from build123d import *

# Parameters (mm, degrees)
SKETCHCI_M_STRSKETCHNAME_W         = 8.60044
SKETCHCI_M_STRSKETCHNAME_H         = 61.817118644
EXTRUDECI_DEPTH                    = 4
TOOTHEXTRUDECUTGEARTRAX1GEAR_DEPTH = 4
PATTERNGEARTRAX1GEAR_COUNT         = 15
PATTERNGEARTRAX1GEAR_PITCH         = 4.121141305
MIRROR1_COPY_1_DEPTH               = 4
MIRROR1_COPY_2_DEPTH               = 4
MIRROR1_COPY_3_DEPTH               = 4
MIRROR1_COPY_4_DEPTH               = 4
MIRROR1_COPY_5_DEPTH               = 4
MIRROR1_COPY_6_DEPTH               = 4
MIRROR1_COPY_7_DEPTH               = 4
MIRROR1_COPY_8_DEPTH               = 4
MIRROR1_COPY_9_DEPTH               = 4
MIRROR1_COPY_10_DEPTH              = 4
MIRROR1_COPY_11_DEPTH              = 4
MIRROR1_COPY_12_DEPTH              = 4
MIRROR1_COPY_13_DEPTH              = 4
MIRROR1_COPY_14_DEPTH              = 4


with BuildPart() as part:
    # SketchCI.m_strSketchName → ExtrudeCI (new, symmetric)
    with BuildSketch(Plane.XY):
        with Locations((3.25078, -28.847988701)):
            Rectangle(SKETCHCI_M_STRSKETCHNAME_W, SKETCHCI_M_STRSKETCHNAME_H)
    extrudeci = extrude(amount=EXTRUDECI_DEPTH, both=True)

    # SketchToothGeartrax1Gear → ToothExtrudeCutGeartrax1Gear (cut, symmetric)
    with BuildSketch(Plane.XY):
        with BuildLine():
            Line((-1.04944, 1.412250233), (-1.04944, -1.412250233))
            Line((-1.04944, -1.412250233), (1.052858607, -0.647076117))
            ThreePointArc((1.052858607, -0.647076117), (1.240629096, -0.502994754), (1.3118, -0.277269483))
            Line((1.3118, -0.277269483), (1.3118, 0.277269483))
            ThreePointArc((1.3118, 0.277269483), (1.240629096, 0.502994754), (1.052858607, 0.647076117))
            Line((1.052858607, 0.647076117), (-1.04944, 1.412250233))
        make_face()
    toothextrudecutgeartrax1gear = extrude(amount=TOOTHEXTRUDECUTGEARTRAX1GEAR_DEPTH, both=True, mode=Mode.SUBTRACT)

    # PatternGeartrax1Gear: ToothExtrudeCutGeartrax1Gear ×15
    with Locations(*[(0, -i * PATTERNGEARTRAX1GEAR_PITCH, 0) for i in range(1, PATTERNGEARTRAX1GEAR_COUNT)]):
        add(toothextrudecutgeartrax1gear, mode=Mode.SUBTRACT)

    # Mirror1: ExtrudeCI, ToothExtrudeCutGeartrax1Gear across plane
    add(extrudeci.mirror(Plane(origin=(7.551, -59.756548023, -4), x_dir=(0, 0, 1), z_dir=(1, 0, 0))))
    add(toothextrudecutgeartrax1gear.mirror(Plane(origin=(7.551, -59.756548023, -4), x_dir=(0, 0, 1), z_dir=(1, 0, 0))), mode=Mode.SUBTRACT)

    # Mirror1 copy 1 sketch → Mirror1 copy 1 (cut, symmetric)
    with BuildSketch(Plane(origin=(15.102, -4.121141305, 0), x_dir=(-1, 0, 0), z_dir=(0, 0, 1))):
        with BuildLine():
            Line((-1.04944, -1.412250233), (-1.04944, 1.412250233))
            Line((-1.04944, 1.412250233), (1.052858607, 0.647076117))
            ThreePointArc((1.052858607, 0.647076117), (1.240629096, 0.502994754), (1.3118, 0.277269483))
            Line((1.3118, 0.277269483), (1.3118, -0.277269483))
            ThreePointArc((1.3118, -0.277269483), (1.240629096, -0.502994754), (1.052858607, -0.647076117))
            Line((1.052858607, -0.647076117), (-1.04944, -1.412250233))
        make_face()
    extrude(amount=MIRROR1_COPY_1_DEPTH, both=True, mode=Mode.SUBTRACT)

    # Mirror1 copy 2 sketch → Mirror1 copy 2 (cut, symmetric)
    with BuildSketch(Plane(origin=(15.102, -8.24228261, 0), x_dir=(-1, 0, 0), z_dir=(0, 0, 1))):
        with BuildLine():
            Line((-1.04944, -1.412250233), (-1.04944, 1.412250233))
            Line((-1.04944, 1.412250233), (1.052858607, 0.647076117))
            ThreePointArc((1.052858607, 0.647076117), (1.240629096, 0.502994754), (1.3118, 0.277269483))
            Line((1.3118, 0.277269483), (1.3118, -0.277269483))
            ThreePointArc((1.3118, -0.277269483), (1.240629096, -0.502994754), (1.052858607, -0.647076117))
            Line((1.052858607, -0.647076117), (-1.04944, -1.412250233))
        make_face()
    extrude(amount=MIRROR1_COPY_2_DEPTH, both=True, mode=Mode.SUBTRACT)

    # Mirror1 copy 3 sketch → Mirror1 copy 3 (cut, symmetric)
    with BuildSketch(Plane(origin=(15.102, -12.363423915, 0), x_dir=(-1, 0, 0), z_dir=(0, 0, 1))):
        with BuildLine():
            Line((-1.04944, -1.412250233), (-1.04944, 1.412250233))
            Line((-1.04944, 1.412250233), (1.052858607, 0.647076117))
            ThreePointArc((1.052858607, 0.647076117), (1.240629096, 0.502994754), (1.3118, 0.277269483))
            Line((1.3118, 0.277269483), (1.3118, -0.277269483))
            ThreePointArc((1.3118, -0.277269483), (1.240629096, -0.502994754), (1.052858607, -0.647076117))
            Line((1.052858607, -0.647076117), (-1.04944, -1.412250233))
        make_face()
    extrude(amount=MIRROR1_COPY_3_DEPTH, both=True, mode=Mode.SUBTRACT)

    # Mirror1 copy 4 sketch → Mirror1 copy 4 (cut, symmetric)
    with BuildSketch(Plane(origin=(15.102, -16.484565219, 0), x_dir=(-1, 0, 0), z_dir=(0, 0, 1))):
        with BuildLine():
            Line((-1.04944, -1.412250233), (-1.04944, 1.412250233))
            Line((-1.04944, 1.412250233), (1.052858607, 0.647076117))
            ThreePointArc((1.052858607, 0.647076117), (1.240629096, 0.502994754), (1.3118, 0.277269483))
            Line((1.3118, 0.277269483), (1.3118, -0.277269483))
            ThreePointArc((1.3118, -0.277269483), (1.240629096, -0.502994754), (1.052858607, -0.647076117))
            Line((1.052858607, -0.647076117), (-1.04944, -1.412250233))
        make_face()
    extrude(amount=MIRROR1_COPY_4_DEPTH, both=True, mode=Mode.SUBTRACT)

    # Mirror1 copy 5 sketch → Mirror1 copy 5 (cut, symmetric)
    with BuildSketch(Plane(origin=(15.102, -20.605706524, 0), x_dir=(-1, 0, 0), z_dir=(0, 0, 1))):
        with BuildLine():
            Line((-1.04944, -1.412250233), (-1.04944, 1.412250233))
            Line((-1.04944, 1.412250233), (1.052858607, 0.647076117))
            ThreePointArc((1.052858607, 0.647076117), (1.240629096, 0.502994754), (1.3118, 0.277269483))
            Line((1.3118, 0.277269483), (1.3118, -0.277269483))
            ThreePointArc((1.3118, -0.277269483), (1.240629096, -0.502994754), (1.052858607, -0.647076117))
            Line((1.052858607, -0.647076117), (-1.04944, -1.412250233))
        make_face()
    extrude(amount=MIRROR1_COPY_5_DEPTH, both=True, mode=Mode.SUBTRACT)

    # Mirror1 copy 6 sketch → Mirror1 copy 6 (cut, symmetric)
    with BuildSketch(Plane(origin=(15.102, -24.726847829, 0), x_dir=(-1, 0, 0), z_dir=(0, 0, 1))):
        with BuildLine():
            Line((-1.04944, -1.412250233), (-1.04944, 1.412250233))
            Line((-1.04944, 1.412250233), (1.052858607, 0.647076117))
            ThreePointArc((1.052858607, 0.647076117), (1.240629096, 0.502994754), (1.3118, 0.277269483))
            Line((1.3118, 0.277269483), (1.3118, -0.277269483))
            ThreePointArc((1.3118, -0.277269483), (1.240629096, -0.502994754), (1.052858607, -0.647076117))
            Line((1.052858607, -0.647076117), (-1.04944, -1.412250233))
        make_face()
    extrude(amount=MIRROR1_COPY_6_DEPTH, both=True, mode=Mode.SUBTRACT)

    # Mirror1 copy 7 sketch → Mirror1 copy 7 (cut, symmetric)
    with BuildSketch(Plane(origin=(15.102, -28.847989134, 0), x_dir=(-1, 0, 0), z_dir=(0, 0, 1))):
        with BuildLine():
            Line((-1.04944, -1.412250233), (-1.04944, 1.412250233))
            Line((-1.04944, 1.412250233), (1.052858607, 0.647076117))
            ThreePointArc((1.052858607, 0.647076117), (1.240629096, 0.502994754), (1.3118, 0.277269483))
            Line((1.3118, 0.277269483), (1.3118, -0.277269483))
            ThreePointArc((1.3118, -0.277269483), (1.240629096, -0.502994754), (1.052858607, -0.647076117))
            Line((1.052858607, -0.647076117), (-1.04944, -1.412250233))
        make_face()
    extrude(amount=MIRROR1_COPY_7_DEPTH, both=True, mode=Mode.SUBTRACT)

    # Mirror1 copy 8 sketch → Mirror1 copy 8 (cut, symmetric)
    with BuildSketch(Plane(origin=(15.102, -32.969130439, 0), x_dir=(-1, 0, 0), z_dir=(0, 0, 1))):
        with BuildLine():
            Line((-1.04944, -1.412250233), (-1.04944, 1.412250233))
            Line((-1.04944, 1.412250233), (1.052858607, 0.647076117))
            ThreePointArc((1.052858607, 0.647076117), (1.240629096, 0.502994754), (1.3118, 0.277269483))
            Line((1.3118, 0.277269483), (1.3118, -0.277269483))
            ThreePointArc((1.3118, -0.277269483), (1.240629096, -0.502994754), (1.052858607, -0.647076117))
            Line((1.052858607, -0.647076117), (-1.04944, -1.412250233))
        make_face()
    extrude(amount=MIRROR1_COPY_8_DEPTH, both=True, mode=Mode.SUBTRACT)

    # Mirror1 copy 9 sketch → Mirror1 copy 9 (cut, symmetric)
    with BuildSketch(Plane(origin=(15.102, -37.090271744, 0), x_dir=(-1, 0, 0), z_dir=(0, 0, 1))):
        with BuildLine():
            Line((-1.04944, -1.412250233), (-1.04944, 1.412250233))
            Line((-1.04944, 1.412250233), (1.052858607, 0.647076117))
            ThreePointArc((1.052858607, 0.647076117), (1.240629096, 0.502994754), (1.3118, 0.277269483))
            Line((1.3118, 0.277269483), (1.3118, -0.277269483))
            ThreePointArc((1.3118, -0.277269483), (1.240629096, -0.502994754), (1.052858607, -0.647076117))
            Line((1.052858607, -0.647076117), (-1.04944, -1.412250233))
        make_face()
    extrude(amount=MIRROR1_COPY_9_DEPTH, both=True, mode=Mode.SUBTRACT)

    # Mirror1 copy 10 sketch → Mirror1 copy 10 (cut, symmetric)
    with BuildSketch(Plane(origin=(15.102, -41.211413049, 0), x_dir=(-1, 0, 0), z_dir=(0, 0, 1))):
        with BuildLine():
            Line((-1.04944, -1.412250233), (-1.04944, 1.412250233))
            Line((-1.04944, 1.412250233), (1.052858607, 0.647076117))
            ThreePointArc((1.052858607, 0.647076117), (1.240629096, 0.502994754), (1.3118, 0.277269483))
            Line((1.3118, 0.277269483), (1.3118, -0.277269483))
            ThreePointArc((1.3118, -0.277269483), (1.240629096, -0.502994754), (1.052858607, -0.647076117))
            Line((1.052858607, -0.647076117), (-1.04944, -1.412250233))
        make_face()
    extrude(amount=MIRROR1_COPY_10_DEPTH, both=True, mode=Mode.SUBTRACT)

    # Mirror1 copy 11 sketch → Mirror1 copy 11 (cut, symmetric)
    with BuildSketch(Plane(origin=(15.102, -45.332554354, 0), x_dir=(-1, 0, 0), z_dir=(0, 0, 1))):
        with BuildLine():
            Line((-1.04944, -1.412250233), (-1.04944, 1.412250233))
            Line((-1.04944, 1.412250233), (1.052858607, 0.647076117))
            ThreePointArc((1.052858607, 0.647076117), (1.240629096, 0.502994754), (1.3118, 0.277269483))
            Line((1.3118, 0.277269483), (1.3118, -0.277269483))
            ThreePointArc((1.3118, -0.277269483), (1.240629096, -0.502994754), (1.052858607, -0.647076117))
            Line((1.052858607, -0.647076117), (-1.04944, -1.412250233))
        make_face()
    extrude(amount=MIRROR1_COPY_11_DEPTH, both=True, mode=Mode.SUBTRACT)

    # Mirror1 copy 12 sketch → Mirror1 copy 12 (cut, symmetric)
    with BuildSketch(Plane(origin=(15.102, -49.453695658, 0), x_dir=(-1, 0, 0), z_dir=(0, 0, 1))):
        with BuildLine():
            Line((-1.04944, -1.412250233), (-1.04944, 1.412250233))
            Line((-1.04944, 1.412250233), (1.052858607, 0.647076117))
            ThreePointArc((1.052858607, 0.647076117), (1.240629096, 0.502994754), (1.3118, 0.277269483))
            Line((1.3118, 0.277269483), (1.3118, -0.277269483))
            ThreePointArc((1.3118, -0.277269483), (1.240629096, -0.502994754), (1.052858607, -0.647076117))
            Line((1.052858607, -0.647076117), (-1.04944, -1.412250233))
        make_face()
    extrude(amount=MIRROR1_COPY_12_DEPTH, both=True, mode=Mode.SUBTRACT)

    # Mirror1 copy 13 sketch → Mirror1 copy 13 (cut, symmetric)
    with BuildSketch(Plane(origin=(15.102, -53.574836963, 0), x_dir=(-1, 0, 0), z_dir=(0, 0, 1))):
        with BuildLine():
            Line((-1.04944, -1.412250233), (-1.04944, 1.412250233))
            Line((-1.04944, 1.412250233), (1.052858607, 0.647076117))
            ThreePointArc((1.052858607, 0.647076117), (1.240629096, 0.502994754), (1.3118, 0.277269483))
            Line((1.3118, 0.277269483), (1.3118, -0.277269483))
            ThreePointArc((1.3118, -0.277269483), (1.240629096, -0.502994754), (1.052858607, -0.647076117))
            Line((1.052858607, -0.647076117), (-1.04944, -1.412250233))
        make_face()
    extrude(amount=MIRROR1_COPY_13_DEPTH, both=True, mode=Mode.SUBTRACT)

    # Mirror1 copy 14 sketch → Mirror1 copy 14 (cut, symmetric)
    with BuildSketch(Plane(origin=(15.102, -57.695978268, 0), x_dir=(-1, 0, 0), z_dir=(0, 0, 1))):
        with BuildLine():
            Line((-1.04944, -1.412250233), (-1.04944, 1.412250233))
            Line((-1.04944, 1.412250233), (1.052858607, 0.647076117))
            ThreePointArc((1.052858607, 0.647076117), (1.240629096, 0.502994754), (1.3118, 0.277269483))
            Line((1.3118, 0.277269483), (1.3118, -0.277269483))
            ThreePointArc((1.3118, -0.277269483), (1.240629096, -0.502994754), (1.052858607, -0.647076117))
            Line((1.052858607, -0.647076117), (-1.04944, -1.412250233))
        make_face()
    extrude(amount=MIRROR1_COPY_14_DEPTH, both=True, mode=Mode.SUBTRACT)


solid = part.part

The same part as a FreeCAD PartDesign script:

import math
import FreeCAD as App
import Part
import Sketcher
Q = App.Units.Quantity


def add_polygon(sketch, points):
    """Adds a closed chain of lines whose ends are joined by coincident constraints."""
    first, n = sketch.GeometryCount, len(points)
    for a, b in zip(points, points[1:] + points[:1]):
        sketch.addGeometry(Part.LineSegment(App.Vector(*a, 0), App.Vector(*b, 0)), False)
    for i in range(n):
        sketch.addConstraint(Sketcher.Constraint("Coincident", first + i, 2, first + (i + 1) % n, 1))

doc = App.newDocument("Part")
body = doc.addObject("PartDesign::Body", "Body")

sketch1 = body.newObject("Sketcher::SketchObject", "Sketch")
sketch1.AttachmentSupport = (doc.getObject("XY_Plane"), [""])
sketch1.MapMode = "FlatFace"
add_polygon(sketch1, [(-1.04944, 2.060571), (-1.04944, -59.756548), (7.551, -59.756548), (7.551, 2.060571)])
sketch1.addConstraint([
    Sketcher.Constraint("Vertical", 0),
    Sketcher.Constraint("Horizontal", 1),
    Sketcher.Constraint("Vertical", 2),
    Sketcher.Constraint("Horizontal", 3),
    Sketcher.Constraint("DistanceX", -1, 1, 1, 2, Q("7.551 mm")),
    Sketcher.Constraint("DistanceX", 1, 1, 1, 2, Q("8.60044 mm")),
    Sketcher.Constraint("DistanceY", 0, 2, 0, 1, Q("61.817119 mm")),
    Sketcher.Constraint("DistanceY", 0, 2, -1, 1, Q("59.756548 mm")),
])
pad1 = body.newObject("PartDesign::Pad", "Pad")
pad1.Profile = sketch1
pad1.Length = 8
pad1.Midplane = True

sketch2 = body.newObject("Sketcher::SketchObject", "Sketch001")
sketch2.AttachmentSupport = (doc.getObject("XY_Plane"), [""])
sketch2.MapMode = "FlatFace"
sketch2.addGeometry([
    Part.LineSegment(App.Vector(-1.04944, 1.41225, 0), App.Vector(-1.04944, -1.41225, 0)),
    Part.LineSegment(App.Vector(-1.04944, -1.41225, 0), App.Vector(1.052859, -0.647076, 0)),
    Part.ArcOfCircle(Part.Circle(App.Vector(0.91826, -0.277269, 0), App.Vector(0, 0, 1), 0.39354), math.radians(-70), math.radians(0)),
    Part.LineSegment(App.Vector(1.3118, -0.277269, 0), App.Vector(1.3118, 0.277269, 0)),
    Part.ArcOfCircle(Part.Circle(App.Vector(0.91826, 0.277269, 0), App.Vector(0, 0, 1), 0.39354), math.radians(0), math.radians(70)),
    Part.LineSegment(App.Vector(1.052859, 0.647076, 0), App.Vector(-1.04944, 1.41225, 0)),
], False)
sketch2.addConstraint([
    Sketcher.Constraint("Coincident", 0, 2, 1, 1),
    Sketcher.Constraint("Tangent", 1, 2, 2, 1),
    Sketcher.Constraint("Tangent", 2, 2, 3, 1),
    Sketcher.Constraint("Tangent", 3, 2, 4, 1),
    Sketcher.Constraint("Tangent", 4, 2, 5, 1),
    Sketcher.Constraint("Coincident", 5, 2, 0, 1),
    Sketcher.Constraint("Vertical", 0),
    Sketcher.Constraint("Vertical", 3),
    Sketcher.Constraint("Equal", 2, 4),
    Sketcher.Constraint("Symmetric", 1, 2, 4, 2, -1),
    Sketcher.Constraint("Angle", 1, Q("20 deg")),
    Sketcher.Constraint("Radius", 2, Q("0.39354 mm")),
    Sketcher.Constraint("DistanceY", 0, 2, 0, 1, Q("2.8245 mm")),
    Sketcher.Constraint("DistanceY", 3, 1, 3, 2, Q("0.554539 mm")),
    Sketcher.Constraint("DistanceX", -1, 1, 2, 2, Q("1.3118 mm")),
])
pocket1 = body.newObject("PartDesign::Pocket", "Pocket")
pocket1.Profile = sketch2
pocket1.Length = 8
pocket1.Midplane = True
doc.recompute()

linearpattern = body.newObject("PartDesign::LinearPattern", "LinearPattern")
linearpattern.Originals = [pocket1]
linearpattern.Direction = (doc.getObject("Y_Axis"), [""])
linearpattern.Mode = "offset"
linearpattern.Offset = 4.121141
linearpattern.Occurrences = 15
linearpattern.Reversed = True
body.Tip = linearpattern
doc.recompute()

datumplane = body.newObject("PartDesign::Plane", "DatumPlane")
datumplane.AttachmentSupport = (doc.getObject("YZ_Plane"), [""])
datumplane.MapMode = "FlatFace"
datumplane.AttachmentOffset = App.Placement(App.Vector(0, 0, 7.551), App.Rotation())
mirrored = body.newObject("PartDesign::Mirrored", "Mirrored")
mirrored.Originals = [pad1, pocket1]
mirrored.MirrorPlane = (datumplane, [""])
body.Tip = mirrored

sketch3 = body.newObject("Sketcher::SketchObject", "Sketch002")
sketch3.AttachmentSupport = (doc.getObject("XY_Plane"), [""])
sketch3.MapMode = "FlatFace"
sketch3.addGeometry([
    Part.LineSegment(App.Vector(16.15144, -5.533392, 0), App.Vector(16.15144, -2.708891, 0)),
    Part.LineSegment(App.Vector(16.15144, -2.708891, 0), App.Vector(14.049141, -3.474065, 0)),
    Part.ArcOfCircle(Part.Circle(App.Vector(14.18374, -3.843872, 0), App.Vector(0, 0, 1), 0.39354), math.radians(110), math.radians(180)),
    Part.LineSegment(App.Vector(13.7902, -3.843872, 0), App.Vector(13.7902, -4.398411, 0)),
    Part.ArcOfCircle(Part.Circle(App.Vector(14.18374, -4.398411, 0), App.Vector(0, 0, 1), 0.39354), math.radians(180), math.radians(250)),
    Part.LineSegment(App.Vector(14.049141, -4.768217, 0), App.Vector(16.15144, -5.533392, 0)),
], False)
sketch3.addConstraint([
    Sketcher.Constraint("Coincident", 0, 2, 1, 1),
    Sketcher.Constraint("Tangent", 1, 2, 2, 1),
    Sketcher.Constraint("Tangent", 2, 2, 3, 1),
    Sketcher.Constraint("Tangent", 3, 2, 4, 1),
    Sketcher.Constraint("Tangent", 4, 2, 5, 1),
    Sketcher.Constraint("Coincident", 5, 2, 0, 1),
    Sketcher.Constraint("Vertical", 0),
    Sketcher.Constraint("Vertical", 3),
    Sketcher.Constraint("Equal", 2, 4),
    Sketcher.Constraint("Vertical", 1, 2, 4, 2),
    Sketcher.Constraint("Angle", 1, Q("-160 deg")),
    Sketcher.Constraint("Radius", 2, Q("0.39354 mm")),
    Sketcher.Constraint("DistanceY", 0, 1, 0, 2, Q("2.8245 mm")),
    Sketcher.Constraint("DistanceY", 3, 2, 3, 1, Q("0.554539 mm")),
    Sketcher.Constraint("DistanceX", -1, 1, 2, 2, Q("13.7902 mm")),
    Sketcher.Constraint("DistanceY", 2, 3, -1, 1, Q("3.843872 mm")),
])
pocket2 = body.newObject("PartDesign::Pocket", "Pocket001")
pocket2.Profile = sketch3
pocket2.Length = 8
pocket2.Midplane = True

sketch4 = body.newObject("Sketcher::SketchObject", "Sketch003")
sketch4.AttachmentSupport = (doc.getObject("XY_Plane"), [""])
sketch4.MapMode = "FlatFace"
sketch4.addGeometry([
    Part.LineSegment(App.Vector(16.15144, -9.654533, 0), App.Vector(16.15144, -6.830032, 0)),
    Part.LineSegment(App.Vector(16.15144, -6.830032, 0), App.Vector(14.049141, -7.595206, 0)),
    Part.ArcOfCircle(Part.Circle(App.Vector(14.18374, -7.965013, 0), App.Vector(0, 0, 1), 0.39354), math.radians(110), math.radians(180)),
    Part.LineSegment(App.Vector(13.7902, -7.965013, 0), App.Vector(13.7902, -8.519552, 0)),
    Part.ArcOfCircle(Part.Circle(App.Vector(14.18374, -8.519552, 0), App.Vector(0, 0, 1), 0.39354), math.radians(180), math.radians(250)),
    Part.LineSegment(App.Vector(14.049141, -8.889359, 0), App.Vector(16.15144, -9.654533, 0)),
], False)
sketch4.addConstraint([
    Sketcher.Constraint("Coincident", 0, 2, 1, 1),
    Sketcher.Constraint("Tangent", 1, 2, 2, 1),
    Sketcher.Constraint("Tangent", 2, 2, 3, 1),
    Sketcher.Constraint("Tangent", 3, 2, 4, 1),
    Sketcher.Constraint("Tangent", 4, 2, 5, 1),
    Sketcher.Constraint("Coincident", 5, 2, 0, 1),
    Sketcher.Constraint("Vertical", 0),
    Sketcher.Constraint("Vertical", 3),
    Sketcher.Constraint("Equal", 2, 4),
    Sketcher.Constraint("Vertical", 1, 2, 4, 2),
    Sketcher.Constraint("Angle", 1, Q("-160 deg")),
    Sketcher.Constraint("Radius", 2, Q("0.39354 mm")),
    Sketcher.Constraint("DistanceY", 0, 1, 0, 2, Q("2.8245 mm")),
    Sketcher.Constraint("DistanceY", 3, 2, 3, 1, Q("0.554539 mm")),
    Sketcher.Constraint("DistanceX", -1, 1, 2, 2, Q("13.7902 mm")),
    Sketcher.Constraint("DistanceY", 4, 2, -1, 1, Q("8.889359 mm")),
])
pocket3 = body.newObject("PartDesign::Pocket", "Pocket002")
pocket3.Profile = sketch4
pocket3.Length = 8
pocket3.Midplane = True

sketch5 = body.newObject("Sketcher::SketchObject", "Sketch004")
sketch5.AttachmentSupport = (doc.getObject("XY_Plane"), [""])
sketch5.MapMode = "FlatFace"
sketch5.addGeometry([
    Part.LineSegment(App.Vector(16.15144, -13.775674, 0), App.Vector(16.15144, -10.951174, 0)),
    Part.LineSegment(App.Vector(16.15144, -10.951174, 0), App.Vector(14.049141, -11.716348, 0)),
    Part.ArcOfCircle(Part.Circle(App.Vector(14.18374, -12.086154, 0), App.Vector(0, 0, 1), 0.39354), math.radians(110), math.radians(180)),
    Part.LineSegment(App.Vector(13.7902, -12.086154, 0), App.Vector(13.7902, -12.640693, 0)),
    Part.ArcOfCircle(Part.Circle(App.Vector(14.18374, -12.640693, 0), App.Vector(0, 0, 1), 0.39354), math.radians(180), math.radians(250)),
    Part.LineSegment(App.Vector(14.049141, -13.0105, 0), App.Vector(16.15144, -13.775674, 0)),
], False)
sketch5.addConstraint([
    Sketcher.Constraint("Coincident", 0, 2, 1, 1),
    Sketcher.Constraint("Tangent", 1, 2, 2, 1),
    Sketcher.Constraint("Tangent", 2, 2, 3, 1),
    Sketcher.Constraint("Tangent", 3, 2, 4, 1),
    Sketcher.Constraint("Tangent", 4, 2, 5, 1),
    Sketcher.Constraint("Coincident", 5, 2, 0, 1),
    Sketcher.Constraint("Vertical", 0),
    Sketcher.Constraint("Vertical", 3),
    Sketcher.Constraint("Equal", 2, 4),
    Sketcher.Constraint("Vertical", 1, 2, 4, 2),
    Sketcher.Constraint("Angle", 1, Q("-160 deg")),
    Sketcher.Constraint("Radius", 2, Q("0.39354 mm")),
    Sketcher.Constraint("DistanceY", 0, 1, 0, 2, Q("2.8245 mm")),
    Sketcher.Constraint("DistanceY", 3, 2, 3, 1, Q("0.554539 mm")),
    Sketcher.Constraint("DistanceX", -1, 1, 2, 2, Q("13.7902 mm")),
    Sketcher.Constraint("DistanceY", 4, 2, -1, 1, Q("13.0105 mm")),
])
pocket4 = body.newObject("PartDesign::Pocket", "Pocket003")
pocket4.Profile = sketch5
pocket4.Length = 8
pocket4.Midplane = True

sketch6 = body.newObject("Sketcher::SketchObject", "Sketch005")
sketch6.AttachmentSupport = (doc.getObject("XY_Plane"), [""])
sketch6.MapMode = "FlatFace"
sketch6.addGeometry([
    Part.LineSegment(App.Vector(16.15144, -17.896815, 0), App.Vector(16.15144, -15.072315, 0)),
    Part.LineSegment(App.Vector(16.15144, -15.072315, 0), App.Vector(14.049141, -15.837489, 0)),
    Part.ArcOfCircle(Part.Circle(App.Vector(14.18374, -16.207296, 0), App.Vector(0, 0, 1), 0.39354), math.radians(110), math.radians(180)),
    Part.LineSegment(App.Vector(13.7902, -16.207296, 0), App.Vector(13.7902, -16.761835, 0)),
    Part.ArcOfCircle(Part.Circle(App.Vector(14.18374, -16.761835, 0), App.Vector(0, 0, 1), 0.39354), math.radians(180), math.radians(250)),
    Part.LineSegment(App.Vector(14.049141, -17.131641, 0), App.Vector(16.15144, -17.896815, 0)),
], False)
sketch6.addConstraint([
    Sketcher.Constraint("Coincident", 0, 2, 1, 1),
    Sketcher.Constraint("Tangent", 1, 2, 2, 1),
    Sketcher.Constraint("Tangent", 2, 2, 3, 1),
    Sketcher.Constraint("Tangent", 3, 2, 4, 1),
    Sketcher.Constraint("Tangent", 4, 2, 5, 1),
    Sketcher.Constraint("Coincident", 5, 2, 0, 1),
    Sketcher.Constraint("Vertical", 0),
    Sketcher.Constraint("Vertical", 3),
    Sketcher.Constraint("Equal", 2, 4),
    Sketcher.Constraint("Vertical", 1, 2, 4, 2),
    Sketcher.Constraint("Angle", 1, Q("-160 deg")),
    Sketcher.Constraint("Radius", 2, Q("0.39354 mm")),
    Sketcher.Constraint("DistanceY", 0, 1, 0, 2, Q("2.8245 mm")),
    Sketcher.Constraint("DistanceY", 3, 2, 3, 1, Q("0.554539 mm")),
    Sketcher.Constraint("DistanceX", -1, 1, 2, 2, Q("13.7902 mm")),
    Sketcher.Constraint("DistanceY", 1, 2, -1, 1, Q("15.837489 mm")),
])
pocket5 = body.newObject("PartDesign::Pocket", "Pocket004")
pocket5.Profile = sketch6
pocket5.Length = 8
pocket5.Midplane = True

sketch7 = body.newObject("Sketcher::SketchObject", "Sketch006")
sketch7.AttachmentSupport = (doc.getObject("XY_Plane"), [""])
sketch7.MapMode = "FlatFace"
sketch7.addGeometry([
    Part.LineSegment(App.Vector(16.15144, -22.017957, 0), App.Vector(16.15144, -19.193456, 0)),
    Part.LineSegment(App.Vector(16.15144, -19.193456, 0), App.Vector(14.049141, -19.95863, 0)),
    Part.ArcOfCircle(Part.Circle(App.Vector(14.18374, -20.328437, 0), App.Vector(0, 0, 1), 0.39354), math.radians(110), math.radians(180)),
    Part.LineSegment(App.Vector(13.7902, -20.328437, 0), App.Vector(13.7902, -20.882976, 0)),
    Part.ArcOfCircle(Part.Circle(App.Vector(14.18374, -20.882976, 0), App.Vector(0, 0, 1), 0.39354), math.radians(180), math.radians(250)),
    Part.LineSegment(App.Vector(14.049141, -21.252783, 0), App.Vector(16.15144, -22.017957, 0)),
], False)
sketch7.addConstraint([
    Sketcher.Constraint("Coincident", 0, 2, 1, 1),
    Sketcher.Constraint("Tangent", 1, 2, 2, 1),
    Sketcher.Constraint("Tangent", 2, 2, 3, 1),
    Sketcher.Constraint("Tangent", 3, 2, 4, 1),
    Sketcher.Constraint("Tangent", 4, 2, 5, 1),
    Sketcher.Constraint("Coincident", 5, 2, 0, 1),
    Sketcher.Constraint("Vertical", 0),
    Sketcher.Constraint("Vertical", 3),
    Sketcher.Constraint("Equal", 2, 4),
    Sketcher.Constraint("Vertical", 1, 2, 4, 2),
    Sketcher.Constraint("Angle", 1, Q("-160 deg")),
    Sketcher.Constraint("Radius", 2, Q("0.39354 mm")),
    Sketcher.Constraint("DistanceY", 0, 1, 0, 2, Q("2.8245 mm")),
    Sketcher.Constraint("DistanceY", 3, 2, 3, 1, Q("0.554539 mm")),
    Sketcher.Constraint("DistanceX", -1, 1, 2, 2, Q("13.7902 mm")),
    Sketcher.Constraint("DistanceY", 1, 2, -1, 1, Q("19.95863 mm")),
])
pocket6 = body.newObject("PartDesign::Pocket", "Pocket005")
pocket6.Profile = sketch7
pocket6.Length = 8
pocket6.Midplane = True

sketch8 = body.newObject("Sketcher::SketchObject", "Sketch007")
sketch8.AttachmentSupport = (doc.getObject("XY_Plane"), [""])
sketch8.MapMode = "FlatFace"
sketch8.addGeometry([
    Part.LineSegment(App.Vector(16.15144, -26.139098, 0), App.Vector(16.15144, -23.314598, 0)),
    Part.LineSegment(App.Vector(16.15144, -23.314598, 0), App.Vector(14.049141, -24.079772, 0)),
    Part.ArcOfCircle(Part.Circle(App.Vector(14.18374, -24.449578, 0), App.Vector(0, 0, 1), 0.39354), math.radians(110), math.radians(180)),
    Part.LineSegment(App.Vector(13.7902, -24.449578, 0), App.Vector(13.7902, -25.004117, 0)),
    Part.ArcOfCircle(Part.Circle(App.Vector(14.18374, -25.004117, 0), App.Vector(0, 0, 1), 0.39354), math.radians(180), math.radians(250)),
    Part.LineSegment(App.Vector(14.049141, -25.373924, 0), App.Vector(16.15144, -26.139098, 0)),
], False)
sketch8.addConstraint([
    Sketcher.Constraint("Coincident", 0, 2, 1, 1),
    Sketcher.Constraint("Tangent", 1, 2, 2, 1),
    Sketcher.Constraint("Tangent", 2, 2, 3, 1),
    Sketcher.Constraint("Tangent", 3, 2, 4, 1),
    Sketcher.Constraint("Tangent", 4, 2, 5, 1),
    Sketcher.Constraint("Coincident", 5, 2, 0, 1),
    Sketcher.Constraint("Vertical", 0),
    Sketcher.Constraint("Vertical", 3),
    Sketcher.Constraint("Equal", 2, 4),
    Sketcher.Constraint("Vertical", 1, 2, 4, 2),
    Sketcher.Constraint("Angle", 1, Q("-160 deg")),
    Sketcher.Constraint("Radius", 2, Q("0.39354 mm")),
    Sketcher.Constraint("DistanceY", 0, 1, 0, 2, Q("2.8245 mm")),
    Sketcher.Constraint("DistanceY", 3, 2, 3, 1, Q("0.554539 mm")),
    Sketcher.Constraint("DistanceX", -1, 1, 2, 2, Q("13.7902 mm")),
    Sketcher.Constraint("DistanceY", 5, 2, -1, 1, Q("26.139098 mm")),
])
pocket7 = body.newObject("PartDesign::Pocket", "Pocket006")
pocket7.Profile = sketch8
pocket7.Length = 8
pocket7.Midplane = True

sketch9 = body.newObject("Sketcher::SketchObject", "Sketch008")
sketch9.AttachmentSupport = (doc.getObject("XY_Plane"), [""])
sketch9.MapMode = "FlatFace"
sketch9.addGeometry([
    Part.LineSegment(App.Vector(16.15144, -30.260239, 0), App.Vector(16.15144, -27.435739, 0)),
    Part.LineSegment(App.Vector(16.15144, -27.435739, 0), App.Vector(14.049141, -28.200913, 0)),
    Part.ArcOfCircle(Part.Circle(App.Vector(14.18374, -28.57072, 0), App.Vector(0, 0, 1), 0.39354), math.radians(110), math.radians(180)),
    Part.LineSegment(App.Vector(13.7902, -28.57072, 0), App.Vector(13.7902, -29.125259, 0)),
    Part.ArcOfCircle(Part.Circle(App.Vector(14.18374, -29.125259, 0), App.Vector(0, 0, 1), 0.39354), math.radians(180), math.radians(250)),
    Part.LineSegment(App.Vector(14.049141, -29.495065, 0), App.Vector(16.15144, -30.260239, 0)),
], False)
sketch9.addConstraint([
    Sketcher.Constraint("Coincident", 0, 2, 1, 1),
    Sketcher.Constraint("Tangent", 1, 2, 2, 1),
    Sketcher.Constraint("Tangent", 2, 2, 3, 1),
    Sketcher.Constraint("Tangent", 3, 2, 4, 1),
    Sketcher.Constraint("Tangent", 4, 2, 5, 1),
    Sketcher.Constraint("Coincident", 5, 2, 0, 1),
    Sketcher.Constraint("Vertical", 0),
    Sketcher.Constraint("Vertical", 3),
    Sketcher.Constraint("Equal", 2, 4),
    Sketcher.Constraint("Vertical", 1, 2, 4, 2),
    Sketcher.Constraint("Angle", 1, Q("-160 deg")),
    Sketcher.Constraint("Radius", 2, Q("0.39354 mm")),
    Sketcher.Constraint("DistanceY", 0, 1, 0, 2, Q("2.8245 mm")),
    Sketcher.Constraint("DistanceY", 3, 2, 3, 1, Q("0.554539 mm")),
    Sketcher.Constraint("DistanceX", -1, 1, 2, 2, Q("13.7902 mm")),
    Sketcher.Constraint("DistanceY", 2, 3, -1, 1, Q("28.57072 mm")),
])
pocket8 = body.newObject("PartDesign::Pocket", "Pocket007")
pocket8.Profile = sketch9
pocket8.Length = 8
pocket8.Midplane = True

sketch10 = body.newObject("Sketcher::SketchObject", "Sketch009")
sketch10.AttachmentSupport = (doc.getObject("XY_Plane"), [""])
sketch10.MapMode = "FlatFace"
sketch10.addGeometry([
    Part.LineSegment(App.Vector(16.15144, -34.381381, 0), App.Vector(16.15144, -31.55688, 0)),
    Part.LineSegment(App.Vector(16.15144, -31.55688, 0), App.Vector(14.049141, -32.322054, 0)),
    Part.ArcOfCircle(Part.Circle(App.Vector(14.18374, -32.691861, 0), App.Vector(0, 0, 1), 0.39354), math.radians(110), math.radians(180)),
    Part.LineSegment(App.Vector(13.7902, -32.691861, 0), App.Vector(13.7902, -33.2464, 0)),
    Part.ArcOfCircle(Part.Circle(App.Vector(14.18374, -33.2464, 0), App.Vector(0, 0, 1), 0.39354), math.radians(180), math.radians(250)),
    Part.LineSegment(App.Vector(14.049141, -33.616207, 0), App.Vector(16.15144, -34.381381, 0)),
], False)
sketch10.addConstraint([
    Sketcher.Constraint("Coincident", 0, 2, 1, 1),
    Sketcher.Constraint("Tangent", 1, 2, 2, 1),
    Sketcher.Constraint("Tangent", 2, 2, 3, 1),
    Sketcher.Constraint("Tangent", 3, 2, 4, 1),
    Sketcher.Constraint("Tangent", 4, 2, 5, 1),
    Sketcher.Constraint("Coincident", 5, 2, 0, 1),
    Sketcher.Constraint("Vertical", 0),
    Sketcher.Constraint("Vertical", 3),
    Sketcher.Constraint("Equal", 2, 4),
    Sketcher.Constraint("Vertical", 1, 2, 4, 2),
    Sketcher.Constraint("Angle", 1, Q("-160 deg")),
    Sketcher.Constraint("Radius", 2, Q("0.39354 mm")),
    Sketcher.Constraint("DistanceY", 0, 1, 0, 2, Q("2.8245 mm")),
    Sketcher.Constraint("DistanceY", 3, 2, 3, 1, Q("0.554539 mm")),
    Sketcher.Constraint("DistanceY", 4, 3, -1, 1, Q("33.2464 mm")),
    Sketcher.Constraint("DistanceX", -1, 1, 2, 2, Q("13.7902 mm")),
])
pocket9 = body.newObject("PartDesign::Pocket", "Pocket008")
pocket9.Profile = sketch10
pocket9.Length = 8
pocket9.Midplane = True

sketch11 = body.newObject("Sketcher::SketchObject", "Sketch010")
sketch11.AttachmentSupport = (doc.getObject("XY_Plane"), [""])
sketch11.MapMode = "FlatFace"
sketch11.addGeometry([
    Part.LineSegment(App.Vector(16.15144, -38.502522, 0), App.Vector(16.15144, -35.678022, 0)),
    Part.LineSegment(App.Vector(16.15144, -35.678022, 0), App.Vector(14.049141, -36.443196, 0)),
    Part.ArcOfCircle(Part.Circle(App.Vector(14.18374, -36.813002, 0), App.Vector(0, 0, 1), 0.39354), math.radians(110), math.radians(180)),
    Part.LineSegment(App.Vector(13.7902, -36.813002, 0), App.Vector(13.7902, -37.367541, 0)),
    Part.ArcOfCircle(Part.Circle(App.Vector(14.18374, -37.367541, 0), App.Vector(0, 0, 1), 0.39354), math.radians(180), math.radians(250)),
    Part.LineSegment(App.Vector(14.049141, -37.737348, 0), App.Vector(16.15144, -38.502522, 0)),
], False)
sketch11.addConstraint([
    Sketcher.Constraint("Coincident", 0, 2, 1, 1),
    Sketcher.Constraint("Tangent", 1, 2, 2, 1),
    Sketcher.Constraint("Tangent", 2, 2, 3, 1),
    Sketcher.Constraint("Tangent", 3, 2, 4, 1),
    Sketcher.Constraint("Tangent", 4, 2, 5, 1),
    Sketcher.Constraint("Coincident", 5, 2, 0, 1),
    Sketcher.Constraint("Vertical", 0),
    Sketcher.Constraint("Vertical", 3),
    Sketcher.Constraint("Equal", 2, 4),
    Sketcher.Constraint("Vertical", 1, 2, 4, 2),
    Sketcher.Constraint("Angle", 1, Q("-160 deg")),
    Sketcher.Constraint("Radius", 2, Q("0.39354 mm")),
    Sketcher.Constraint("DistanceY", 0, 1, 0, 2, Q("2.8245 mm")),
    Sketcher.Constraint("DistanceY", 3, 2, 3, 1, Q("0.554539 mm")),
    Sketcher.Constraint("DistanceX", -1, 1, 2, 2, Q("13.7902 mm")),
    Sketcher.Constraint("DistanceY", 4, 3, -1, 1, Q("37.367541 mm")),
])
pocket10 = body.newObject("PartDesign::Pocket", "Pocket009")
pocket10.Profile = sketch11
pocket10.Length = 8
pocket10.Midplane = True

sketch12 = body.newObject("Sketcher::SketchObject", "Sketch011")
sketch12.AttachmentSupport = (doc.getObject("XY_Plane"), [""])
sketch12.MapMode = "FlatFace"
sketch12.addGeometry([
    Part.LineSegment(App.Vector(16.15144, -42.623663, 0), App.Vector(16.15144, -39.799163, 0)),
    Part.LineSegment(App.Vector(16.15144, -39.799163, 0), App.Vector(14.049141, -40.564337, 0)),
    Part.ArcOfCircle(Part.Circle(App.Vector(14.18374, -40.934144, 0), App.Vector(0, 0, 1), 0.39354), math.radians(110), math.radians(180)),
    Part.LineSegment(App.Vector(13.7902, -40.934144, 0), App.Vector(13.7902, -41.488683, 0)),
    Part.ArcOfCircle(Part.Circle(App.Vector(14.18374, -41.488683, 0), App.Vector(0, 0, 1), 0.39354), math.radians(180), math.radians(250)),
    Part.LineSegment(App.Vector(14.049141, -41.858489, 0), App.Vector(16.15144, -42.623663, 0)),
], False)
sketch12.addConstraint([
    Sketcher.Constraint("Coincident", 0, 2, 1, 1),
    Sketcher.Constraint("Tangent", 1, 2, 2, 1),
    Sketcher.Constraint("Tangent", 2, 2, 3, 1),
    Sketcher.Constraint("Tangent", 3, 2, 4, 1),
    Sketcher.Constraint("Tangent", 4, 2, 5, 1),
    Sketcher.Constraint("Coincident", 5, 2, 0, 1),
    Sketcher.Constraint("Vertical", 0),
    Sketcher.Constraint("Vertical", 3),
    Sketcher.Constraint("Equal", 2, 4),
    Sketcher.Constraint("Vertical", 1, 2, 4, 2),
    Sketcher.Constraint("Angle", 1, Q("-160 deg")),
    Sketcher.Constraint("Radius", 2, Q("0.39354 mm")),
    Sketcher.Constraint("DistanceY", 0, 1, 0, 2, Q("2.8245 mm")),
    Sketcher.Constraint("DistanceY", 3, 2, 3, 1, Q("0.554539 mm")),
    Sketcher.Constraint("DistanceX", -1, 1, 2, 2, Q("13.7902 mm")),
    Sketcher.Constraint("DistanceY", 4, 2, -1, 1, Q("41.858489 mm")),
])
pocket11 = body.newObject("PartDesign::Pocket", "Pocket010")
pocket11.Profile = sketch12
pocket11.Length = 8
pocket11.Midplane = True

sketch13 = body.newObject("Sketcher::SketchObject", "Sketch012")
sketch13.AttachmentSupport = (doc.getObject("XY_Plane"), [""])
sketch13.MapMode = "FlatFace"
sketch13.addGeometry([
    Part.LineSegment(App.Vector(16.15144, -46.744805, 0), App.Vector(16.15144, -43.920304, 0)),
    Part.LineSegment(App.Vector(16.15144, -43.920304, 0), App.Vector(14.049141, -44.685478, 0)),
    Part.ArcOfCircle(Part.Circle(App.Vector(14.18374, -45.055285, 0), App.Vector(0, 0, 1), 0.39354), math.radians(110), math.radians(180)),
    Part.LineSegment(App.Vector(13.7902, -45.055285, 0), App.Vector(13.7902, -45.609824, 0)),
    Part.ArcOfCircle(Part.Circle(App.Vector(14.18374, -45.609824, 0), App.Vector(0, 0, 1), 0.39354), math.radians(180), math.radians(250)),
    Part.LineSegment(App.Vector(14.049141, -45.97963, 0), App.Vector(16.15144, -46.744805, 0)),
], False)
sketch13.addConstraint([
    Sketcher.Constraint("Coincident", 0, 2, 1, 1),
    Sketcher.Constraint("Tangent", 1, 2, 2, 1),
    Sketcher.Constraint("Tangent", 2, 2, 3, 1),
    Sketcher.Constraint("Tangent", 3, 2, 4, 1),
    Sketcher.Constraint("Tangent", 4, 2, 5, 1),
    Sketcher.Constraint("Coincident", 5, 2, 0, 1),
    Sketcher.Constraint("Vertical", 0),
    Sketcher.Constraint("Vertical", 3),
    Sketcher.Constraint("Equal", 2, 4),
    Sketcher.Constraint("Vertical", 1, 2, 4, 2),
    Sketcher.Constraint("Angle", 1, Q("-160 deg")),
    Sketcher.Constraint("Radius", 2, Q("0.39354 mm")),
    Sketcher.Constraint("DistanceY", 0, 1, 0, 2, Q("2.8245 mm")),
    Sketcher.Constraint("DistanceY", 3, 2, 3, 1, Q("0.554539 mm")),
    Sketcher.Constraint("DistanceX", -1, 1, 2, 2, Q("13.7902 mm")),
    Sketcher.Constraint("DistanceY", 1, 2, -1, 1, Q("44.685478 mm")),
])
pocket12 = body.newObject("PartDesign::Pocket", "Pocket011")
pocket12.Profile = sketch13
pocket12.Length = 8
pocket12.Midplane = True

sketch14 = body.newObject("Sketcher::SketchObject", "Sketch013")
sketch14.AttachmentSupport = (doc.getObject("XY_Plane"), [""])
sketch14.MapMode = "FlatFace"
sketch14.addGeometry([
    Part.LineSegment(App.Vector(16.15144, -50.865946, 0), App.Vector(16.15144, -48.041445, 0)),
    Part.LineSegment(App.Vector(16.15144, -48.041445, 0), App.Vector(14.049141, -48.80662, 0)),
    Part.ArcOfCircle(Part.Circle(App.Vector(14.18374, -49.176426, 0), App.Vector(0, 0, 1), 0.39354), math.radians(110), math.radians(180)),
    Part.LineSegment(App.Vector(13.7902, -49.176426, 0), App.Vector(13.7902, -49.730965, 0)),
    Part.ArcOfCircle(Part.Circle(App.Vector(14.18374, -49.730965, 0), App.Vector(0, 0, 1), 0.39354), math.radians(180), math.radians(250)),
    Part.LineSegment(App.Vector(14.049141, -50.100772, 0), App.Vector(16.15144, -50.865946, 0)),
], False)
sketch14.addConstraint([
    Sketcher.Constraint("Coincident", 0, 2, 1, 1),
    Sketcher.Constraint("Tangent", 1, 2, 2, 1),
    Sketcher.Constraint("Tangent", 2, 2, 3, 1),
    Sketcher.Constraint("Tangent", 3, 2, 4, 1),
    Sketcher.Constraint("Tangent", 4, 2, 5, 1),
    Sketcher.Constraint("Coincident", 5, 2, 0, 1),
    Sketcher.Constraint("Vertical", 0),
    Sketcher.Constraint("Vertical", 3),
    Sketcher.Constraint("Equal", 2, 4),
    Sketcher.Constraint("Vertical", 1, 2, 4, 2),
    Sketcher.Constraint("Angle", 1, Q("-160 deg")),
    Sketcher.Constraint("Radius", 2, Q("0.39354 mm")),
    Sketcher.Constraint("DistanceY", 0, 1, 0, 2, Q("2.8245 mm")),
    Sketcher.Constraint("DistanceY", 3, 2, 3, 1, Q("0.554539 mm")),
    Sketcher.Constraint("DistanceX", -1, 1, 2, 2, Q("13.7902 mm")),
    Sketcher.Constraint("DistanceY", 1, 2, -1, 1, Q("48.80662 mm")),
])
pocket13 = body.newObject("PartDesign::Pocket", "Pocket012")
pocket13.Profile = sketch14
pocket13.Length = 8
pocket13.Midplane = True

sketch15 = body.newObject("Sketcher::SketchObject", "Sketch014")
sketch15.AttachmentSupport = (doc.getObject("XY_Plane"), [""])
sketch15.MapMode = "FlatFace"
sketch15.addGeometry([
    Part.LineSegment(App.Vector(16.15144, -54.987087, 0), App.Vector(16.15144, -52.162587, 0)),
    Part.LineSegment(App.Vector(16.15144, -52.162587, 0), App.Vector(14.049141, -52.927761, 0)),
    Part.ArcOfCircle(Part.Circle(App.Vector(14.18374, -53.297567, 0), App.Vector(0, 0, 1), 0.39354), math.radians(110), math.radians(180)),
    Part.LineSegment(App.Vector(13.7902, -53.297567, 0), App.Vector(13.7902, -53.852106, 0)),
    Part.ArcOfCircle(Part.Circle(App.Vector(14.18374, -53.852106, 0), App.Vector(0, 0, 1), 0.39354), math.radians(180), math.radians(250)),
    Part.LineSegment(App.Vector(14.049141, -54.221913, 0), App.Vector(16.15144, -54.987087, 0)),
], False)
sketch15.addConstraint([
    Sketcher.Constraint("Coincident", 0, 2, 1, 1),
    Sketcher.Constraint("Tangent", 1, 2, 2, 1),
    Sketcher.Constraint("Tangent", 2, 2, 3, 1),
    Sketcher.Constraint("Tangent", 3, 2, 4, 1),
    Sketcher.Constraint("Tangent", 4, 2, 5, 1),
    Sketcher.Constraint("Coincident", 5, 2, 0, 1),
    Sketcher.Constraint("Vertical", 0),
    Sketcher.Constraint("Vertical", 3),
    Sketcher.Constraint("Equal", 2, 4),
    Sketcher.Constraint("Vertical", 1, 2, 4, 2),
    Sketcher.Constraint("Angle", 1, Q("-160 deg")),
    Sketcher.Constraint("Radius", 2, Q("0.39354 mm")),
    Sketcher.Constraint("DistanceY", 0, 1, 0, 2, Q("2.8245 mm")),
    Sketcher.Constraint("DistanceY", 3, 2, 3, 1, Q("0.554539 mm")),
    Sketcher.Constraint("DistanceX", -1, 1, 2, 2, Q("13.7902 mm")),
    Sketcher.Constraint("DistanceY", 1, 2, -1, 1, Q("52.927761 mm")),
])
pocket14 = body.newObject("PartDesign::Pocket", "Pocket013")
pocket14.Profile = sketch15
pocket14.Length = 8
pocket14.Midplane = True

sketch16 = body.newObject("Sketcher::SketchObject", "Sketch015")
sketch16.AttachmentSupport = (doc.getObject("XY_Plane"), [""])
sketch16.MapMode = "FlatFace"
sketch16.addGeometry([
    Part.LineSegment(App.Vector(16.15144, -59.108229, 0), App.Vector(16.15144, -56.283728, 0)),
    Part.LineSegment(App.Vector(16.15144, -56.283728, 0), App.Vector(14.049141, -57.048902, 0)),
    Part.ArcOfCircle(Part.Circle(App.Vector(14.18374, -57.418709, 0), App.Vector(0, 0, 1), 0.39354), math.radians(110), math.radians(180)),
    Part.LineSegment(App.Vector(13.7902, -57.418709, 0), App.Vector(13.7902, -57.973248, 0)),
    Part.ArcOfCircle(Part.Circle(App.Vector(14.18374, -57.973248, 0), App.Vector(0, 0, 1), 0.39354), math.radians(180), math.radians(250)),
    Part.LineSegment(App.Vector(14.049141, -58.343054, 0), App.Vector(16.15144, -59.108229, 0)),
], False)
sketch16.addConstraint([
    Sketcher.Constraint("Coincident", 0, 2, 1, 1),
    Sketcher.Constraint("Tangent", 1, 2, 2, 1),
    Sketcher.Constraint("Tangent", 2, 2, 3, 1),
    Sketcher.Constraint("Tangent", 3, 2, 4, 1),
    Sketcher.Constraint("Tangent", 4, 2, 5, 1),
    Sketcher.Constraint("Coincident", 5, 2, 0, 1),
    Sketcher.Constraint("Vertical", 0),
    Sketcher.Constraint("Vertical", 3),
    Sketcher.Constraint("Equal", 2, 4),
    Sketcher.Constraint("Vertical", 1, 2, 4, 2),
    Sketcher.Constraint("Angle", 1, Q("-160 deg")),
    Sketcher.Constraint("Radius", 2, Q("0.39354 mm")),
    Sketcher.Constraint("DistanceY", 0, 1, 0, 2, Q("2.8245 mm")),
    Sketcher.Constraint("DistanceY", 3, 2, 3, 1, Q("0.554539 mm")),
    Sketcher.Constraint("DistanceX", -1, 1, 2, 2, Q("13.7902 mm")),
    Sketcher.Constraint("DistanceY", 2, 3, -1, 1, Q("57.418709 mm")),
])
pocket15 = body.newObject("PartDesign::Pocket", "Pocket014")
pocket15.Profile = sketch16
pocket15.Length = 8
pocket15.Midplane = True

doc.recompute()
